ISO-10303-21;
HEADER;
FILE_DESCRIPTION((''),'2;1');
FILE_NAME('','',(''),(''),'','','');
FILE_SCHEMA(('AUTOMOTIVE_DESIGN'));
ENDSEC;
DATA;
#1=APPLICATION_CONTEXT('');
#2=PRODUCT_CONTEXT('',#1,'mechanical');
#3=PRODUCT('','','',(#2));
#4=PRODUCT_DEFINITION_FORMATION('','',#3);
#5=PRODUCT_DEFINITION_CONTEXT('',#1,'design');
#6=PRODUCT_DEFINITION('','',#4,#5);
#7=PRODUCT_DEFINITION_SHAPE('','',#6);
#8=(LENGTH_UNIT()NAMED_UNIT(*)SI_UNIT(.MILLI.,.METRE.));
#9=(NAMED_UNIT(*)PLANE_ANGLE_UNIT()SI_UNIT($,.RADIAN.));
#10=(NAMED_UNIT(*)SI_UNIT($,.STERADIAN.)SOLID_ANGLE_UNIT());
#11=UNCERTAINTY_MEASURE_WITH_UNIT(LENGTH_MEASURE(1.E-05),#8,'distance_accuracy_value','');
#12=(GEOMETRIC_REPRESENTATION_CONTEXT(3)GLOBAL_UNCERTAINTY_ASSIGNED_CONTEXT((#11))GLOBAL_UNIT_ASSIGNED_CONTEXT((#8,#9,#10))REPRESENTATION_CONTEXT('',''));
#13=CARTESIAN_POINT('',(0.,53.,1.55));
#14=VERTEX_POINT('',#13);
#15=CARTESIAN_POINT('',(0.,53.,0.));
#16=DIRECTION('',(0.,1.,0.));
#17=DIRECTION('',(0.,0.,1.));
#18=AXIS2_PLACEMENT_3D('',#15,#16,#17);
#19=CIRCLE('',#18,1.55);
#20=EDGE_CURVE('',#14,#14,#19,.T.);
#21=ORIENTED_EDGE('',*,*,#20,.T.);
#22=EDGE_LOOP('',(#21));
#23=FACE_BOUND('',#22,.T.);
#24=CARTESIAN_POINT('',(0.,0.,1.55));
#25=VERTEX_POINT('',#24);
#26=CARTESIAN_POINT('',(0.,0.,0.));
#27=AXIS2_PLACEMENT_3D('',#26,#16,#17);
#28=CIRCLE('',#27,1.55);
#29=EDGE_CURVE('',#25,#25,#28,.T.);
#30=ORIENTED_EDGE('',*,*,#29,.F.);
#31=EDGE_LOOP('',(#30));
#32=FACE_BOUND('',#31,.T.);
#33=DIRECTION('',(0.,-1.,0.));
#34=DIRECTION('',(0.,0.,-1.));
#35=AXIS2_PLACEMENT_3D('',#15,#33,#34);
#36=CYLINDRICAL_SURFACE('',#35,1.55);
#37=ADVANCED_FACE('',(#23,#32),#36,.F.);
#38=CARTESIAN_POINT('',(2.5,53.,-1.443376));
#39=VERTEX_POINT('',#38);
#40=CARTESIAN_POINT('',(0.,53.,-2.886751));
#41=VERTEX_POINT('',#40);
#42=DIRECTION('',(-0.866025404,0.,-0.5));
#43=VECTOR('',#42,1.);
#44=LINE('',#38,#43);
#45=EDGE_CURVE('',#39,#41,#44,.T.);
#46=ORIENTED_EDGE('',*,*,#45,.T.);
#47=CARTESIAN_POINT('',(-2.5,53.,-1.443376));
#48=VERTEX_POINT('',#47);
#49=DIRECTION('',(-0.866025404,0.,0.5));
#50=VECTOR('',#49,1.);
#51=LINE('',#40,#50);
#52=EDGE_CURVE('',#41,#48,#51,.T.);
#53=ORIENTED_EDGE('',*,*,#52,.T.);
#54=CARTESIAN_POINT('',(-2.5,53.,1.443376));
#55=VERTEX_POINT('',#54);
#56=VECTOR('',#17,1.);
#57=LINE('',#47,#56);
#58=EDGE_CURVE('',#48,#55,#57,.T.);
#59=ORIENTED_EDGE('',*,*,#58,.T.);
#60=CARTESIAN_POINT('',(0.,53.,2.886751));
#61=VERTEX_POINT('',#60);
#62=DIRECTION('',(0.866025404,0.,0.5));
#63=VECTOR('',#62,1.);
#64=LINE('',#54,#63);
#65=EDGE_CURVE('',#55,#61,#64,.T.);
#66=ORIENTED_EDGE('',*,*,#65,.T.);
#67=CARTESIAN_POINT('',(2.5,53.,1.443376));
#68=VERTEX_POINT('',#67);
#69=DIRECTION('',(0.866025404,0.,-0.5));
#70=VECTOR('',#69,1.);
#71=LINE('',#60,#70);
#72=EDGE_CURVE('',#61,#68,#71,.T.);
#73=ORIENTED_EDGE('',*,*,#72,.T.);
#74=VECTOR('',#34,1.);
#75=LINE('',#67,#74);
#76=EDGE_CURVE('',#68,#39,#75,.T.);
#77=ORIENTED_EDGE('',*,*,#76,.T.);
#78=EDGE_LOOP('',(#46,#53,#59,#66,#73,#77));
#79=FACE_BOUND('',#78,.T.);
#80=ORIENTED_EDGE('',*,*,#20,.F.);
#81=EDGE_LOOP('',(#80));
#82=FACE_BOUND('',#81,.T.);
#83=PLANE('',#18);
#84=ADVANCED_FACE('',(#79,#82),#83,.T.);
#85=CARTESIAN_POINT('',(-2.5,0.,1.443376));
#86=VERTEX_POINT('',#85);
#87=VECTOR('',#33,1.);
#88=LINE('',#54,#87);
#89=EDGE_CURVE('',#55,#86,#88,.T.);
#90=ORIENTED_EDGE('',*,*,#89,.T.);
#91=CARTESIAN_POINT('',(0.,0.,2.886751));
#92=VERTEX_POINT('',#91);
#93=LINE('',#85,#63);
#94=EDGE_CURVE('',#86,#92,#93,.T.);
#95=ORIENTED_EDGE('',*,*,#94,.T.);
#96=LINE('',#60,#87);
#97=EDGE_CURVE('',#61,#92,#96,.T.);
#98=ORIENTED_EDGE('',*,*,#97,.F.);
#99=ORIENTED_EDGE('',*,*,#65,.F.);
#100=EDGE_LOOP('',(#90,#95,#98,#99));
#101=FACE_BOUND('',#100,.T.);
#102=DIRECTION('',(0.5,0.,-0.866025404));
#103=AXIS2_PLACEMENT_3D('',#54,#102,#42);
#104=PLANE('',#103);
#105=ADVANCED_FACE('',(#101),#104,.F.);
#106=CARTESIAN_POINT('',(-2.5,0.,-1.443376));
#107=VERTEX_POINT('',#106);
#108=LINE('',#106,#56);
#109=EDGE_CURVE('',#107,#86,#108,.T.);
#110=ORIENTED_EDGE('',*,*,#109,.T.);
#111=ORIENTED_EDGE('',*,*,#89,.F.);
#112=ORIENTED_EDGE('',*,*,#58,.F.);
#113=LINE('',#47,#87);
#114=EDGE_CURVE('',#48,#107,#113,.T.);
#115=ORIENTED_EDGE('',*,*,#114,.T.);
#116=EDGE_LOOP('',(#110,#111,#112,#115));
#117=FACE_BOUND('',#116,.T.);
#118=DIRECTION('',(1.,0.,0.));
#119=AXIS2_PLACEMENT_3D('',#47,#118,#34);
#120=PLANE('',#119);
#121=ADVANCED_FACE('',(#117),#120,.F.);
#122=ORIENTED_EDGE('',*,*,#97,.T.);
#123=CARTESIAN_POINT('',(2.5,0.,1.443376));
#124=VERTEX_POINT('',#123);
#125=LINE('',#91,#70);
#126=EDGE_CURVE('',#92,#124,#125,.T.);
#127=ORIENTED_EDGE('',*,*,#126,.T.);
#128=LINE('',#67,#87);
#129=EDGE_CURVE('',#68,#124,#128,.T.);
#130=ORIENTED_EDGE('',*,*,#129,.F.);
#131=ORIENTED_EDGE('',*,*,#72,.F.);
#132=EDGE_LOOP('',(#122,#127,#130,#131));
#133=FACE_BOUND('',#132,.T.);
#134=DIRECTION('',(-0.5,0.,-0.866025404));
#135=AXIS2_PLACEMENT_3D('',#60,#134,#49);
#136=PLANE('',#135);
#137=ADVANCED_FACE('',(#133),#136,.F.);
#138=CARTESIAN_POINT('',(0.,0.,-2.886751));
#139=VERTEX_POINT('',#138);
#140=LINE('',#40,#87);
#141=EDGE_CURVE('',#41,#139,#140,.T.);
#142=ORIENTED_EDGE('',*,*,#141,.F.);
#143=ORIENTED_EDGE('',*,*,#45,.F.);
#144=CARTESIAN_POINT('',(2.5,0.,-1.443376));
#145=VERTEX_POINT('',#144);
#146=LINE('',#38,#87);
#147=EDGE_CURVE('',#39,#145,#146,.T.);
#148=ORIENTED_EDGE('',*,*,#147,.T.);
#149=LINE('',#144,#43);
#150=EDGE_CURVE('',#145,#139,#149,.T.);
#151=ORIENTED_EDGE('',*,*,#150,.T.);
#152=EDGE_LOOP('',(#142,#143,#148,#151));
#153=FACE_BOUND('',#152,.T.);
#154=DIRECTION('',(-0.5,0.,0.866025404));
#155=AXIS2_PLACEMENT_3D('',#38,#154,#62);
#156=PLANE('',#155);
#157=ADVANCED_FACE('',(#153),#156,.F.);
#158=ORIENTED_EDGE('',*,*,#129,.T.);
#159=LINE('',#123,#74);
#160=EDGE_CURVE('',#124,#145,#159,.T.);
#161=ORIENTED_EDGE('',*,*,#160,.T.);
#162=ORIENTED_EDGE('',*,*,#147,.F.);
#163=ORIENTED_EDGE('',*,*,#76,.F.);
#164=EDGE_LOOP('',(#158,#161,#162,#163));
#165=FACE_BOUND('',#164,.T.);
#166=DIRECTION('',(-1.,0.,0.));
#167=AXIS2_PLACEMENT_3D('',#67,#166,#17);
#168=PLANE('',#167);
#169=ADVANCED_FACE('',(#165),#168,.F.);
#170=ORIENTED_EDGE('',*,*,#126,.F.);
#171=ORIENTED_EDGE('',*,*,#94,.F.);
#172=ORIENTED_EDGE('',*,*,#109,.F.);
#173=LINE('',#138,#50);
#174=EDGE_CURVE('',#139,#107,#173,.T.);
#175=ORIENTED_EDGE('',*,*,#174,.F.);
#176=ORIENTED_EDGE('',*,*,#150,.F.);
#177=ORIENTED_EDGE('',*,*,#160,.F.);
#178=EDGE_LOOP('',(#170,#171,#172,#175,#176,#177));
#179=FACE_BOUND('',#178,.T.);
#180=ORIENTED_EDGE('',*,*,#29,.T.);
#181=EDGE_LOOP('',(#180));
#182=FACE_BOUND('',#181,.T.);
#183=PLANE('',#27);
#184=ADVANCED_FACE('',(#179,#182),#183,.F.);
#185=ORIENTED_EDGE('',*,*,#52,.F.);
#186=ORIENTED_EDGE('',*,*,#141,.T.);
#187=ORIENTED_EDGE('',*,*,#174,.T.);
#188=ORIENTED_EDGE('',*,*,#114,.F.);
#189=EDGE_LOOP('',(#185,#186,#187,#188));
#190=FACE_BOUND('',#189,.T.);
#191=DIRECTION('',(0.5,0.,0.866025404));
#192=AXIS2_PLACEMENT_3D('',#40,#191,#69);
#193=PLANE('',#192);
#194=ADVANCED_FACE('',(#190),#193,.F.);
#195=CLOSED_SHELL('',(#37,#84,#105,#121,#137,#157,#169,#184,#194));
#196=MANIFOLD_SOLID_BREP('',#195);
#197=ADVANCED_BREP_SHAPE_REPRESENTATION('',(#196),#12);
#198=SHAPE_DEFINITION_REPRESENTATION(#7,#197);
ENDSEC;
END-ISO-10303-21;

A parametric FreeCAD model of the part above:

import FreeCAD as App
import Part
import Sketcher
from FreeCAD import Vector
Q = App.Units.Quantity


def add_polygon(sketch, points):
    """Adds a closed chain of lines whose ends are joined by coincident constraints."""
    first, n = sketch.GeometryCount, len(points)
    for a, b in zip(points, points[1:] + points[:1]):
        sketch.addGeometry(Part.LineSegment(App.Vector(*a, 0), App.Vector(*b, 0)), False)
    for i in range(n):
        sketch.addConstraint(Sketcher.Constraint("Coincident", first + i, 2, first + (i + 1) % n, 1))

doc = App.newDocument("Part")
body = doc.addObject("PartDesign::Body", "Body")

# Sketch on XZ plane
sketch1 = body.newObject("Sketcher::SketchObject", "Sketch")
sketch1.AttachmentSupport = (doc.getObject("XZ_Plane"), [""])
sketch1.MapMode = "FlatFace"
add_polygon(sketch1, [(0, 2.9), (2.5, 1.4), (2.5, -1.4), (0, -2.9), (-2.5, -1.4), (-2.5, 1.4)])  # lines 0-5
sketch1.addGeometry(Part.Circle(Vector(0, 0, 0), Vector(0, 0, 1), 1.6), False)  # 6
sketch1.addConstraint([
    Sketcher.Constraint("Vertical", 1),
    Sketcher.Constraint("Vertical", 4),
    Sketcher.Constraint("Coincident", 6, 3, -1, 1),
    Sketcher.Constraint("Symmetric", 0, 2, 3, 2, -1, 1),
    Sketcher.Constraint("Symmetric", 2, 2, 5, 2, -1, 1),
    Sketcher.Constraint("PointOnObject", 2, 2, -2),
    Sketcher.Constraint("Parallel", 2, 5),
    Sketcher.Constraint("Horizontal", 1, 2, 3, 2),
    Sketcher.Constraint("Diameter", 6, Q("3.1 mm")),
    Sketcher.Constraint("Angle", 0, Q("-30 deg")),
    Sketcher.Constraint("DistanceX", 3, 2, 1, 2, Q("5 mm")),
    Sketcher.Constraint("DistanceY", 1, 2, 1, 1, Q("2.886751 mm")),
])
pad1 = body.newObject("PartDesign::Pad", "Pad")
pad1.Profile = sketch1
pad1.Length = 53
pad1.Reversed = True

doc.recompute()
